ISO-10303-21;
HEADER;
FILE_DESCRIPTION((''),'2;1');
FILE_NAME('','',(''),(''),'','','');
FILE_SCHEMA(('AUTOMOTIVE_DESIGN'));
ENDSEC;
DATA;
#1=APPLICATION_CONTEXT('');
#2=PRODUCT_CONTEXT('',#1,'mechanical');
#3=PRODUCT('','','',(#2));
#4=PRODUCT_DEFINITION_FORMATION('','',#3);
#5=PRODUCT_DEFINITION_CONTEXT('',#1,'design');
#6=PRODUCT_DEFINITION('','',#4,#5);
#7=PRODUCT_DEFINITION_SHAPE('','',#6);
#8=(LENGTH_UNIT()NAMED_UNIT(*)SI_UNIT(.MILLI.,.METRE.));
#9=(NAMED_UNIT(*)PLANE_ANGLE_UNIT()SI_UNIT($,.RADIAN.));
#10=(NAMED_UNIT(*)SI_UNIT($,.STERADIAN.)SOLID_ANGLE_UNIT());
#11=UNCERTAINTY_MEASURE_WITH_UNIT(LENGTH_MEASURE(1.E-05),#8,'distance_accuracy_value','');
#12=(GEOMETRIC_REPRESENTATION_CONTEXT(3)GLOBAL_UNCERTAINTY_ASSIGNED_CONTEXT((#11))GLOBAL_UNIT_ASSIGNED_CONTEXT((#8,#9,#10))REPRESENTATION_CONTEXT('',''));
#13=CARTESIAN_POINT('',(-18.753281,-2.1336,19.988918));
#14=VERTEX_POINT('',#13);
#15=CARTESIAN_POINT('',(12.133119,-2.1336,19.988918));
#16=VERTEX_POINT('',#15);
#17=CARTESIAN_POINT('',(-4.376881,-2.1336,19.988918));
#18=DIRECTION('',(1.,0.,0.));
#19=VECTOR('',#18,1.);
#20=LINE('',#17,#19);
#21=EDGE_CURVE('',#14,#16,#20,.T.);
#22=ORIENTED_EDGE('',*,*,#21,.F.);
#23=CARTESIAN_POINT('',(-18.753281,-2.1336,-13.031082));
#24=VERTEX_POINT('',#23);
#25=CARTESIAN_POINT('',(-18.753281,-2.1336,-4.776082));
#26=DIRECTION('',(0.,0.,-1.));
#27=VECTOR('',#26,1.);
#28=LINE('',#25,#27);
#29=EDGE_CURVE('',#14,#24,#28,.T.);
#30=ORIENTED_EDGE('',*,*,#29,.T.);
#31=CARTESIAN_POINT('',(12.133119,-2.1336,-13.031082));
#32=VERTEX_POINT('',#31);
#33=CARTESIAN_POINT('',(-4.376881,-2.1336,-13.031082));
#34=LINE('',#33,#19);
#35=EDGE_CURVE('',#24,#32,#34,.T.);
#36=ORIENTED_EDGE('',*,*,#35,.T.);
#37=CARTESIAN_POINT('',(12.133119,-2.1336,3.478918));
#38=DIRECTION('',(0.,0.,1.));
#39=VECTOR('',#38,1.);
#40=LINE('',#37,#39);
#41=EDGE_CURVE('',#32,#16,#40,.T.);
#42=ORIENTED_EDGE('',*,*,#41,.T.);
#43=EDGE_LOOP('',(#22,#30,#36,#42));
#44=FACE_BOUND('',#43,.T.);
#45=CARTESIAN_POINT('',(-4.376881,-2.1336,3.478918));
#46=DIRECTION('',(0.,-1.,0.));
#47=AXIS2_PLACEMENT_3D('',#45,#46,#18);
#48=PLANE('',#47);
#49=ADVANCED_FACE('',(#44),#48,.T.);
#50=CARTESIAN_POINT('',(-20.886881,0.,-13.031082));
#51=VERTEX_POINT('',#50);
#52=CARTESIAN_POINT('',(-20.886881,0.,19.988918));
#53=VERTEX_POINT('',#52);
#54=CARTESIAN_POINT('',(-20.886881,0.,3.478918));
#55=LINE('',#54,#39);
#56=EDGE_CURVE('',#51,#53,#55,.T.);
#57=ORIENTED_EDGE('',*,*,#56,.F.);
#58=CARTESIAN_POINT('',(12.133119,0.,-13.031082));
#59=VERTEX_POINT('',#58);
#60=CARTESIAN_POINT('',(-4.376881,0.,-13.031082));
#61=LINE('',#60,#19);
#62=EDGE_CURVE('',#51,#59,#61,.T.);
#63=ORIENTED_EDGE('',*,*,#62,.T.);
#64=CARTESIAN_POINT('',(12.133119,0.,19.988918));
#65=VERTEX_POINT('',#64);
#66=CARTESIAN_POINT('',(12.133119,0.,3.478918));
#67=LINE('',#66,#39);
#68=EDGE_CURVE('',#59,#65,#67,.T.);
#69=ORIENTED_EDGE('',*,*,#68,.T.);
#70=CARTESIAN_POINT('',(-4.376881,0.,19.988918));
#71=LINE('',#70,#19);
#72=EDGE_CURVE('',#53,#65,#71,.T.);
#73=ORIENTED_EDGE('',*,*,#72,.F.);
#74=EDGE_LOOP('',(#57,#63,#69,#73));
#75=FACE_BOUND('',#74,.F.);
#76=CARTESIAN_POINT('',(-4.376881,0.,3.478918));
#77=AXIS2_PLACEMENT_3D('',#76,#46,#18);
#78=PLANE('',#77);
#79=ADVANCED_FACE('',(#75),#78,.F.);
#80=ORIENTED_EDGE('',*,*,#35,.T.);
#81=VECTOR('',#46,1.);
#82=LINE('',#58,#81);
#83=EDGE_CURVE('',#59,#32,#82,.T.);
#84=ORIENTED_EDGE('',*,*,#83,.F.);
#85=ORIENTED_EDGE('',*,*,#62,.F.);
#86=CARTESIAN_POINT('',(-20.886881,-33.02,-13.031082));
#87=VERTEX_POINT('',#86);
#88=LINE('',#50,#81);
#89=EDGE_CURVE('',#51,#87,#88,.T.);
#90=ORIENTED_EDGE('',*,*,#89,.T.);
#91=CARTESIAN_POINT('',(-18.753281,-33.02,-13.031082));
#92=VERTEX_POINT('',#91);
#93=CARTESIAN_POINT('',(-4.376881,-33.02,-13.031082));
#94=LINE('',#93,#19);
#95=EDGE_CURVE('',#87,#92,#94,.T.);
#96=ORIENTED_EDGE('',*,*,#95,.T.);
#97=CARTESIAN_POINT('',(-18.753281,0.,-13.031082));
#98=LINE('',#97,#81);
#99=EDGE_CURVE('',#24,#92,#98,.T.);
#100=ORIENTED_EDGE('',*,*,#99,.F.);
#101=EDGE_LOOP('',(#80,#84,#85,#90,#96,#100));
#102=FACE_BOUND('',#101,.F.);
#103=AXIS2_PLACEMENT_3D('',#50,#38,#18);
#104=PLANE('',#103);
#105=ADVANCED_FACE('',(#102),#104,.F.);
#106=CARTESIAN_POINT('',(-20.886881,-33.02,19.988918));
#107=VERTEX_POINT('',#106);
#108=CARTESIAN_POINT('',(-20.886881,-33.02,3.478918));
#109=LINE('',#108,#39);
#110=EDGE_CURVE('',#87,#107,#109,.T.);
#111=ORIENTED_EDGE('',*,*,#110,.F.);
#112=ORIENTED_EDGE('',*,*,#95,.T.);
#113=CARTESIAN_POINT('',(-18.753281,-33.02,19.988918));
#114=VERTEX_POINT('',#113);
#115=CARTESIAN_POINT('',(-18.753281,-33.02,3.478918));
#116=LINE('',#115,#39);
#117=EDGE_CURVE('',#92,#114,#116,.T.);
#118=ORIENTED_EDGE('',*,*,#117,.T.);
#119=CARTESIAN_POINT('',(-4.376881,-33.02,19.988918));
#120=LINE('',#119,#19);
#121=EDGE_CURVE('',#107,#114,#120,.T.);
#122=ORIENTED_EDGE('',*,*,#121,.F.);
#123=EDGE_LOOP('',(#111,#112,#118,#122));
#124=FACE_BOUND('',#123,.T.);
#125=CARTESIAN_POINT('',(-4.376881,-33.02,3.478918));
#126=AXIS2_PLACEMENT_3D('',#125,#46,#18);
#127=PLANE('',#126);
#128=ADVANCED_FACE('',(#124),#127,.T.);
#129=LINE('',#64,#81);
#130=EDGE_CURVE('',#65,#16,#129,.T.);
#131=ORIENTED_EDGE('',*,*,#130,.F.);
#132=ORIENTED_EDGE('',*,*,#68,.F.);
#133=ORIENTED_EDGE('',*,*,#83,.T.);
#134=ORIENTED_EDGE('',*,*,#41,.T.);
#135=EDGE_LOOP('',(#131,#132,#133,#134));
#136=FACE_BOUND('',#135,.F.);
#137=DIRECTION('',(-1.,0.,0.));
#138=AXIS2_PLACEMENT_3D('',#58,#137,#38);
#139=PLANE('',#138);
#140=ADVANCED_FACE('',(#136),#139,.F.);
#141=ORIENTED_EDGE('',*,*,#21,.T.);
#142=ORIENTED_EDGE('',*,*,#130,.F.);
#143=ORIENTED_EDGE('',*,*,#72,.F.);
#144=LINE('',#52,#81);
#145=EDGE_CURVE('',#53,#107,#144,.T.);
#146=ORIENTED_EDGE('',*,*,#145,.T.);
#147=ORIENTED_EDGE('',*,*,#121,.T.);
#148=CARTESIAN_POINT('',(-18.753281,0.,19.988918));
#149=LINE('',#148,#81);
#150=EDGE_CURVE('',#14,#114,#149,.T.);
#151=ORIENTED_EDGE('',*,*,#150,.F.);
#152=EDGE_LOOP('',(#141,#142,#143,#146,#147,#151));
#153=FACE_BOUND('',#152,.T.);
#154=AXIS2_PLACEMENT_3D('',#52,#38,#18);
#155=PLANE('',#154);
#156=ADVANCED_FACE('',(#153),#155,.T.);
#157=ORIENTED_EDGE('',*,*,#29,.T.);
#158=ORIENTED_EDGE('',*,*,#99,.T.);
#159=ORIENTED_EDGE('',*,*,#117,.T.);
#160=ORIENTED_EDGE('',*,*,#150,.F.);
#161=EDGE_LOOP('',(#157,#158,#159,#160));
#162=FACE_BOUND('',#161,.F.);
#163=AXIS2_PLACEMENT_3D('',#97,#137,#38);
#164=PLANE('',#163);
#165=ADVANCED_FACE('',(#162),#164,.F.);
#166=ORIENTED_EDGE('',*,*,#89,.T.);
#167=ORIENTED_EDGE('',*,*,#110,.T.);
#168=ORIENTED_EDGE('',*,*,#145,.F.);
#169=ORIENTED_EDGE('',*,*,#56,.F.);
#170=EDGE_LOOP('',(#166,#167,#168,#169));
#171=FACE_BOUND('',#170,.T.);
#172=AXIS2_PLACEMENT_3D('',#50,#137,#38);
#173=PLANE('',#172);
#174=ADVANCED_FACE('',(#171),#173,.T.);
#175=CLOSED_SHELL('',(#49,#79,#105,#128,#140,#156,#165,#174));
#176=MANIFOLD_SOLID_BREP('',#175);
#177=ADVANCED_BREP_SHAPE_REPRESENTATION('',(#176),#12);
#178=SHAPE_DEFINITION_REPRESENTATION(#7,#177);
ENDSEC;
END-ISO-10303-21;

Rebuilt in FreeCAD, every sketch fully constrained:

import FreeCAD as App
import Part
import Sketcher

V = App.Vector
Q = App.Units.Quantity


def faces_at(feature, points):
    """Names of the faces that lie closest to the given points."""
    faces = feature.Shape.Faces
    near = lambda p: min(range(len(faces)), key=lambda i: faces[i].distToShape(Part.Vertex(*p))[0])
    return sorted({f"Face{near(p) + 1}" for p in points})


def add_polygon(sketch, points):
    """Adds a closed chain of lines whose ends are joined by coincident constraints."""
    first, n = sketch.GeometryCount, len(points)
    for a, b in zip(points, points[1:] + points[:1]):
        sketch.addGeometry(Part.LineSegment(App.Vector(*a, 0), App.Vector(*b, 0)), False)
    for i in range(n):
        sketch.addConstraint(Sketcher.Constraint("Coincident", first + i, 2, first + (i + 1) % n, 1))

doc = App.newDocument("Part")
body = doc.addObject("PartDesign::Body", "Body")

sketch1 = body.newObject("Sketcher::SketchObject", "Sketch")
sketch1.AttachmentSupport = (doc.getObject("XZ_Plane"), [""])
sketch1.MapMode = "FlatFace"
add_polygon(sketch1, [(-21, 20), (-21, -13), (12, -13), (12, 20)])
sketch1.addConstraint(Sketcher.Constraint("Vertical", 0))
sketch1.addConstraint(Sketcher.Constraint("Horizontal", 1))
sketch1.addConstraint(Sketcher.Constraint("Vertical", 2))
sketch1.addConstraint(Sketcher.Constraint("Horizontal", 3))
sketch1.addConstraint(Sketcher.Constraint("Equal", 3, 0))
sketch1.addConstraint(Sketcher.Constraint("DistanceX", 1, 1, 1, 2, Q("1.3 in")))
sketch1.addConstraint(Sketcher.Constraint("DistanceX", 0, 2, -1, 1, Q("20.886881 mm")))
sketch1.addConstraint(Sketcher.Constraint("DistanceY", -1, 1, 2, 2, Q("19.988918 mm")))
pad1 = body.newObject("PartDesign::Pad", "Pad")
pad1.Profile = sketch1
pad1.Length = Q("1.3 in")
doc.recompute()

thickness = body.newObject("PartDesign::Thickness", "Thickness")
thickness.Base = (pad1, faces_at(pad1, [
    (-4.377, -16.51, -13.031),
    (12.133, -16.51, 3.479),
    (-4.377, -33.02, 3.479),
    (-4.377, -16.51, 19.989),
]))
thickness.Value = Q("0.084 in")
thickness.Reversed = True
thickness.Join = "Arc"

doc.recompute()
